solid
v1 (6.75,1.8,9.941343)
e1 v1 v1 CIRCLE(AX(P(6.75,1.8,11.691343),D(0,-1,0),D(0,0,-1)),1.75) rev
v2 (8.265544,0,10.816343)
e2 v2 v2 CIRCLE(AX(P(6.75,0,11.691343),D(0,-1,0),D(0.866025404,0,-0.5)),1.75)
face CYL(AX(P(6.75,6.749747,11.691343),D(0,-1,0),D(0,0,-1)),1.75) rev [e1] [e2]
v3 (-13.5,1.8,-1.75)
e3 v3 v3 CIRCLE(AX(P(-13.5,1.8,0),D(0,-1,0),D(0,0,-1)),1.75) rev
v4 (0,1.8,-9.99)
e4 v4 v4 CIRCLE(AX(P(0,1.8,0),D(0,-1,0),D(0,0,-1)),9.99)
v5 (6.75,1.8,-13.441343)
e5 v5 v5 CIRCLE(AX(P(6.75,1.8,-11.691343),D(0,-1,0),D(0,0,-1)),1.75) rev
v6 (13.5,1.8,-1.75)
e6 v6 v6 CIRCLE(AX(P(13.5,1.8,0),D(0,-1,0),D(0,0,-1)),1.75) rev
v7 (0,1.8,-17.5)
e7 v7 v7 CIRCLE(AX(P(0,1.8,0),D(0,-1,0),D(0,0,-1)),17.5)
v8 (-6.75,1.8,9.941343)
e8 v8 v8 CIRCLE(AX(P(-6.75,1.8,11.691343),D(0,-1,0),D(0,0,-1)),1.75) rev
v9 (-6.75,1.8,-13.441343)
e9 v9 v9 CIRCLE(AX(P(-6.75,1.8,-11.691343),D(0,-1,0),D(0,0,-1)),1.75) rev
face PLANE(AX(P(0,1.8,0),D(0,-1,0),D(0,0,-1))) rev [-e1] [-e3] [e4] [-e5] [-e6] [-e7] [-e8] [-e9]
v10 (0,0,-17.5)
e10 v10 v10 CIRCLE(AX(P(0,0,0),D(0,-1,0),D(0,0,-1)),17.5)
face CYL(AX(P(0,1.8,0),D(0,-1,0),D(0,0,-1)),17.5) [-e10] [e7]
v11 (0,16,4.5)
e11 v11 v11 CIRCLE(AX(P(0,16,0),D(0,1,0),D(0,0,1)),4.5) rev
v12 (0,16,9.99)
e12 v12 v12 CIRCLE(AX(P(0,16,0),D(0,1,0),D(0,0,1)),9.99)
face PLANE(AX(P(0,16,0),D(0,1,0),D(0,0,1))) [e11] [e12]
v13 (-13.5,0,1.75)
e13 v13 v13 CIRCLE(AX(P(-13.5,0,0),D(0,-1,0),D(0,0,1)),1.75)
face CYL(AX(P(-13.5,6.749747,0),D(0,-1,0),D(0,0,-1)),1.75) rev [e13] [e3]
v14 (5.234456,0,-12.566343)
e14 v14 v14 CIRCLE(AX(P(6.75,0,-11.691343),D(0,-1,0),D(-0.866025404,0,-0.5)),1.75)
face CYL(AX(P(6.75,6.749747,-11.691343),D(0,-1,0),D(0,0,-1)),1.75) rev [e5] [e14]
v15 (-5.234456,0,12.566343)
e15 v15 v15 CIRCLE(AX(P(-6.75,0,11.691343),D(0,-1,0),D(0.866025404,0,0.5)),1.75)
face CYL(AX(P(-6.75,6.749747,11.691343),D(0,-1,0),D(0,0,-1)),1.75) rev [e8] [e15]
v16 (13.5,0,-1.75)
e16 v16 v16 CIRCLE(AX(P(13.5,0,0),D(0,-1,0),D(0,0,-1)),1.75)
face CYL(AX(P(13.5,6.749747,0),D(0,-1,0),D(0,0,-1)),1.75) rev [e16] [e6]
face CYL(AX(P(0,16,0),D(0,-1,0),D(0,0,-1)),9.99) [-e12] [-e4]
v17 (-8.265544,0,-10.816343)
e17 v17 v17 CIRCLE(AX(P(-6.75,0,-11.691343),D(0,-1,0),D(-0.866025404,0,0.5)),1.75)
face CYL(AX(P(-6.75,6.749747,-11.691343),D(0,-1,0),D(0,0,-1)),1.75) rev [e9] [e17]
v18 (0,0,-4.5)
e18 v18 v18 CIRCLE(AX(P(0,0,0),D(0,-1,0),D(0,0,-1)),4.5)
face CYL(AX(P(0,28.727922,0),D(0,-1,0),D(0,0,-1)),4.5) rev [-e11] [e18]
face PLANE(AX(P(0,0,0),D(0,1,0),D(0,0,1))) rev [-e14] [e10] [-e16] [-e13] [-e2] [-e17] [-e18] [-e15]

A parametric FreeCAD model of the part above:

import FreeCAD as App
import Part
import Sketcher
from FreeCAD import Vector

doc = App.newDocument("Part")
body = doc.addObject("PartDesign::Body", "Body")

# Sketch on XZ plane
sketch1 = body.newObject("Sketcher::SketchObject", "Sketch")
sketch1.AttachmentSupport = (doc.getObject("XZ_Plane"), [""])
sketch1.MapMode = "FlatFace"
sketch1.addGeometry(Part.Circle(Vector(0, 0, 0), Vector(0, 0, 1), 10), False)
sketch1.addConstraint([
    Sketcher.Constraint("Coincident", 0, 3, -1, 1),
    Sketcher.Constraint("Diameter", 0, 19.98),
])
pad1 = body.newObject("PartDesign::Pad", "Pad")
pad1.Profile = sketch1
pad1.Length = 16
pad1.Reversed = True

# Sketch on XZ plane
sketch2 = body.newObject("Sketcher::SketchObject", "Sketch001")
sketch2.AttachmentSupport = (doc.getObject("XZ_Plane"), [""])
sketch2.MapMode = "FlatFace"
sketch2.addGeometry(Part.Circle(Vector(0, 0, 0), Vector(0, 0, 1), 18), False)
sketch2.addConstraint([
    Sketcher.Constraint("Coincident", 0, 3, -1, 1),
    Sketcher.Constraint("Diameter", 0, 35.0),
])
pad2 = body.newObject("PartDesign::Pad", "Pad001")
pad2.Profile = sketch2
pad2.Length = 1.8
pad2.Reversed = True

# Sketch on XZ plane
sketch3 = body.newObject("Sketcher::SketchObject", "Sketch002")
sketch3.AttachmentSupport = (doc.getObject("XZ_Plane"), [""])
sketch3.MapMode = "FlatFace"
sketch3.addGeometry(Part.Circle(Vector(0, 0, 0), Vector(0, 0, 1), 4.5), False)
sketch3.addConstraint([
    Sketcher.Constraint("Coincident", 0, 3, -1, 1),
    Sketcher.Constraint("Diameter", 0, 9.0),
])
pocket1 = body.newObject("PartDesign::Pocket", "Pocket")
pocket1.Profile = sketch3
pocket1.Length = 16

# Sketch on XZ plane
sketch4 = body.newObject("Sketcher::SketchObject", "Sketch003")
sketch4.AttachmentSupport = (doc.getObject("XZ_Plane"), [""])
sketch4.MapMode = "FlatFace"
sketch4.addGeometry(Part.Circle(Vector(13.5, 0, 0), Vector(0, 0, 1), 1.8), False)
sketch4.addConstraint([
    Sketcher.Constraint("PointOnObject", 0, 3, -1),
    Sketcher.Constraint("Diameter", 0, 3.5),
    Sketcher.Constraint("DistanceX", -1, 1, 0, 3, 13.5),
])
pocket2 = body.newObject("PartDesign::Pocket", "Pocket001")
pocket2.Profile = sketch4
pocket2.Length = 1.8
doc.recompute()

polarpattern = body.newObject("PartDesign::PolarPattern", "PolarPattern")
polarpattern.Originals = [pocket2]
polarpattern.Axis = (doc.getObject("Y_Axis"), [""])
polarpattern.Angle = 360
polarpattern.Occurrences = 6
body.Tip = polarpattern

doc.recompute()
